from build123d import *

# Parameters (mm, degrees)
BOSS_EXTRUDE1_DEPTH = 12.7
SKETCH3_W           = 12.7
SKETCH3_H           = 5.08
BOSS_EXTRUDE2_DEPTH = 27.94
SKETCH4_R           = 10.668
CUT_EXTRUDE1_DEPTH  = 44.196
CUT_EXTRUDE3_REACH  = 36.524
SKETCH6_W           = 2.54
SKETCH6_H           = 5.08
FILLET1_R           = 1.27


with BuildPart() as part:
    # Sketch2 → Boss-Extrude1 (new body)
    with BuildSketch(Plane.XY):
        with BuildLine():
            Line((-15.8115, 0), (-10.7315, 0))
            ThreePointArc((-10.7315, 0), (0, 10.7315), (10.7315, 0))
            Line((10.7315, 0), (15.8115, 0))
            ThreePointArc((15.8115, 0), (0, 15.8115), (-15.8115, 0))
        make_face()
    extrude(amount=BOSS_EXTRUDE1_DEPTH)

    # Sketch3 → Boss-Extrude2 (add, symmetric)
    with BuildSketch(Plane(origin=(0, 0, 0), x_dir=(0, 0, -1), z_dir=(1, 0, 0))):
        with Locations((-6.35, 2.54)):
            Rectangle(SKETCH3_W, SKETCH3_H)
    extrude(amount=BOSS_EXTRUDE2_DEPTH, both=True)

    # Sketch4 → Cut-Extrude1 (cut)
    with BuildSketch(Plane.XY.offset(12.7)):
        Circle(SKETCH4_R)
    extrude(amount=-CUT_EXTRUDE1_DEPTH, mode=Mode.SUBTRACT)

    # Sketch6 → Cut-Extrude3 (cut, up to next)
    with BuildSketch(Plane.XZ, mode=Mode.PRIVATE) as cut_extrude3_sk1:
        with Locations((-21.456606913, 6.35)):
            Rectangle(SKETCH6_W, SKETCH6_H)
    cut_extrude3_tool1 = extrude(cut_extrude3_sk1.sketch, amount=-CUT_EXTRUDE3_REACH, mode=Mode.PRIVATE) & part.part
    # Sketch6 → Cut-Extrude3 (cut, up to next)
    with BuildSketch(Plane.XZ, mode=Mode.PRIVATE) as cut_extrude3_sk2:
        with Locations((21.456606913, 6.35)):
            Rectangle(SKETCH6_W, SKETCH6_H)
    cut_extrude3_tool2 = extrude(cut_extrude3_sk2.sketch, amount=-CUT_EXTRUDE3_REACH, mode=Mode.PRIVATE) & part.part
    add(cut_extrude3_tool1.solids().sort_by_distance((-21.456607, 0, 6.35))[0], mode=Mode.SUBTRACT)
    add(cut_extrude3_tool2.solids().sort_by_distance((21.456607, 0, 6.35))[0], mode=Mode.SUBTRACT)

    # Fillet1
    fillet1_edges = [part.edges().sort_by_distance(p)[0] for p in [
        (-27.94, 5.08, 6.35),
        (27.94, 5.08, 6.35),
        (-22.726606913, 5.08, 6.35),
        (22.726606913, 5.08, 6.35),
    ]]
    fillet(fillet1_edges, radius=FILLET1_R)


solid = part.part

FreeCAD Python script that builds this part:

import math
import FreeCAD as App
import Part
import Sketcher
Q = App.Units.Quantity


def edges_at(feature, points):
    """Names of the edges that pass closest to the given points."""
    edges = feature.Shape.Edges
    near = lambda p: min(range(len(edges)), key=lambda i: edges[i].distToShape(Part.Vertex(*p))[0])
    return sorted({f"Edge{near(p) + 1}" for p in points})

doc = App.newDocument("Part")
params = doc.addObject("Spreadsheet::Sheet", "Params")
for row, (alias, value) in enumerate([
    ("sketch1_width", "0.2 in"),
    ("pad1_length", "0.5 in"),
    ("sketch2_width", "0.2 in"),
    ("sketch2_height", "0.5 in"),
    ("pad2_length", "2.2 in"),
    ("sketch3_diameter", "0.84 in"),
    ("pocket1_length", "1.74 in"),
    ("sketch4_width", "0.1 in"),
    ("sketch4_height", "0.2 in"),
    ("sketch5_width", "0.1 in"),
    ("sketch5_height", "0.2 in"),
    ("fillet_radius", "0.05 in"),
], start=1):
    params.set(f"A{row}", alias)
    params.set(f"B{row}", "=" + value)
    params.setAlias(f"B{row}", alias)

body = doc.addObject("PartDesign::Body", "Body")

sketch1 = body.newObject("Sketcher::SketchObject", "Sketch")
sketch1.AttachmentSupport = (doc.getObject("XY_Plane"), [""])
sketch1.MapMode = "FlatFace"
sketch1.addGeometry(Part.LineSegment(App.Vector(-16, 0, 0), App.Vector(-11, 0, 0)), False)
sketch1.addGeometry(Part.ArcOfCircle(Part.Circle(App.Vector(0, 0, 0), App.Vector(0, 0, 1), 11), math.radians(0), math.radians(180)), False)
sketch1.addGeometry(Part.LineSegment(App.Vector(11, 0, 0), App.Vector(16, 0, 0)), False)
sketch1.addGeometry(Part.ArcOfCircle(Part.Circle(App.Vector(0, 0, 0), App.Vector(0, 0, 1), 16), math.radians(0), math.radians(180)), False)
sketch1.addConstraint(Sketcher.Constraint("Coincident", 0, 2, 1, 2))
sketch1.addConstraint(Sketcher.Constraint("Coincident", 1, 1, 2, 1))
sketch1.addConstraint(Sketcher.Constraint("Coincident", 2, 2, 3, 1))
sketch1.addConstraint(Sketcher.Constraint("Coincident", 3, 2, 0, 1))
sketch1.addConstraint(Sketcher.Constraint("Horizontal", 0))
sketch1.addConstraint(Sketcher.Constraint("Horizontal", 2))
sketch1.addConstraint(Sketcher.Constraint("Coincident", 1, 3, -1, 1))
sketch1.addConstraint(Sketcher.Constraint("Coincident", 3, 3, -1, 1))
sketch1.addConstraint(Sketcher.Constraint("PointOnObject", 0, 2, -1))
sketch1.addConstraint(Sketcher.Constraint("PointOnObject", 1, 1, -1))
sketch1.addConstraint(Sketcher.Constraint("DistanceX", 0, 1, 0, 2, Q("0.2 in")))
sketch1.addConstraint(Sketcher.Constraint("Radius", 1, Q("0.4225 in")))
sketch1.setExpression("Constraints[10]", "Params.sketch1_width")
pad1 = body.newObject("PartDesign::Pad", "Pad")
pad1.Profile = sketch1
pad1.setExpression("Length", "Params.pad1_length")

sketch2 = body.newObject("Sketcher::SketchObject", "Sketch001")
sketch2.AttachmentSupport = (doc.getObject("YZ_Plane"), [""])
sketch2.MapMode = "FlatFace"
sketch2.addGeometry(Part.LineSegment(App.Vector(5, 13, 0), App.Vector(0, 13, 0)), False)
sketch2.addGeometry(Part.LineSegment(App.Vector(0, 13, 0), App.Vector(0, 0, 0)), False)
sketch2.addGeometry(Part.LineSegment(App.Vector(0, 0, 0), App.Vector(5, 0, 0)), False)
sketch2.addGeometry(Part.LineSegment(App.Vector(5, 0, 0), App.Vector(5, 13, 0)), False)
sketch2.addConstraint(Sketcher.Constraint("Coincident", 0, 2, 1, 1))
sketch2.addConstraint(Sketcher.Constraint("Coincident", 1, 2, 2, 1))
sketch2.addConstraint(Sketcher.Constraint("Coincident", 2, 2, 3, 1))
sketch2.addConstraint(Sketcher.Constraint("Coincident", 3, 2, 0, 1))
sketch2.addConstraint(Sketcher.Constraint("Horizontal", 0))
sketch2.addConstraint(Sketcher.Constraint("Vertical", 1))
sketch2.addConstraint(Sketcher.Constraint("Horizontal", 2))
sketch2.addConstraint(Sketcher.Constraint("Vertical", 3))
sketch2.addConstraint(Sketcher.Constraint("Coincident", 1, 2, -1, 1))
sketch2.addConstraint(Sketcher.Constraint("DistanceX", 0, 2, 0, 1, Q("0.2 in")))
sketch2.addConstraint(Sketcher.Constraint("DistanceY", 1, 2, 1, 1, Q("0.5 in")))
sketch2.setExpression("Constraints[9]", "Params.sketch2_width")
sketch2.setExpression("Constraints[10]", "Params.sketch2_height")
pad2 = body.newObject("PartDesign::Pad", "Pad001")
pad2.Profile = sketch2
pad2.setExpression("Length", "Params.pad2_length")
pad2.Midplane = True

sketch3 = body.newObject("Sketcher::SketchObject", "Sketch002")
sketch3.AttachmentSupport = (doc.getObject("XY_Plane"), [""])
sketch3.MapMode = "FlatFace"
sketch3.AttachmentOffset = App.Placement(App.Vector(0, 0, 0.5 * 25.4), App.Rotation())
sketch3.addGeometry(Part.Circle(App.Vector(0, 0, 0), App.Vector(0, 0, 1), 11), False)
sketch3.addConstraint(Sketcher.Constraint("Coincident", 0, 3, -1, 1))
sketch3.addConstraint(Sketcher.Constraint("Diameter", 0, Q("0.84 in")))
sketch3.setExpression("Constraints[1]", "Params.sketch3_diameter")
pocket1 = body.newObject("PartDesign::Pocket", "Pocket")
pocket1.Profile = sketch3
pocket1.setExpression("Length", "Params.pocket1_length")

sketch4 = body.newObject("Sketcher::SketchObject", "Sketch003")
sketch4.AttachmentSupport = (doc.getObject("XZ_Plane"), [""])
sketch4.MapMode = "FlatFace"
sketch4.addGeometry(Part.LineSegment(App.Vector(-22.7, 8.9, 0), App.Vector(-22.7, 3.8, 0)), False)
sketch4.addGeometry(Part.LineSegment(App.Vector(-22.7, 3.8, 0), App.Vector(-20.2, 3.8, 0)), False)
sketch4.addGeometry(Part.LineSegment(App.Vector(-20.2, 3.8, 0), App.Vector(-20.2, 8.9, 0)), False)
sketch4.addGeometry(Part.LineSegment(App.Vector(-20.2, 8.9, 0), App.Vector(-22.7, 8.9, 0)), False)
sketch4.addConstraint(Sketcher.Constraint("Coincident", 0, 2, 1, 1))
sketch4.addConstraint(Sketcher.Constraint("Coincident", 1, 2, 2, 1))
sketch4.addConstraint(Sketcher.Constraint("Coincident", 2, 2, 3, 1))
sketch4.addConstraint(Sketcher.Constraint("Coincident", 3, 2, 0, 1))
sketch4.addConstraint(Sketcher.Constraint("Vertical", 0))
sketch4.addConstraint(Sketcher.Constraint("Horizontal", 1))
sketch4.addConstraint(Sketcher.Constraint("Vertical", 2))
sketch4.addConstraint(Sketcher.Constraint("Horizontal", 3))
sketch4.addConstraint(Sketcher.Constraint("DistanceX", 1, 1, 1, 2, Q("0.1 in")))
sketch4.addConstraint(Sketcher.Constraint("DistanceY", 0, 2, 0, 1, Q("0.2 in")))
sketch4.addConstraint(Sketcher.Constraint("DistanceY", -1, 1, 0, 2, Q("0.15 in")))
sketch4.addConstraint(Sketcher.Constraint("DistanceX", 0, 2, -1, 1, Q("22.726607 mm")))
sketch4.setExpression("Constraints[8]", "Params.sketch4_width")
sketch4.setExpression("Constraints[9]", "Params.sketch4_height")
pocket2 = body.newObject("PartDesign::Pocket", "Pocket001")
pocket2.Profile = sketch4
pocket2.Type = "UpToFirst"

sketch5 = body.newObject("Sketcher::SketchObject", "Sketch004")
sketch5.AttachmentSupport = (doc.getObject("XZ_Plane"), [""])
sketch5.MapMode = "FlatFace"
sketch5.addGeometry(Part.LineSegment(App.Vector(20.2, 8.9, 0), App.Vector(20.2, 3.8, 0)), False)
sketch5.addGeometry(Part.LineSegment(App.Vector(20.2, 3.8, 0), App.Vector(22.7, 3.8, 0)), False)
sketch5.addGeometry(Part.LineSegment(App.Vector(22.7, 3.8, 0), App.Vector(22.7, 8.9, 0)), False)
sketch5.addGeometry(Part.LineSegment(App.Vector(22.7, 8.9, 0), App.Vector(20.2, 8.9, 0)), False)
sketch5.addConstraint(Sketcher.Constraint("Coincident", 0, 2, 1, 1))
sketch5.addConstraint(Sketcher.Constraint("Coincident", 1, 2, 2, 1))
sketch5.addConstraint(Sketcher.Constraint("Coincident", 2, 2, 3, 1))
sketch5.addConstraint(Sketcher.Constraint("Coincident", 3, 2, 0, 1))
sketch5.addConstraint(Sketcher.Constraint("Vertical", 0))
sketch5.addConstraint(Sketcher.Constraint("Horizontal", 1))
sketch5.addConstraint(Sketcher.Constraint("Vertical", 2))
sketch5.addConstraint(Sketcher.Constraint("Horizontal", 3))
sketch5.addConstraint(Sketcher.Constraint("DistanceX", 1, 1, 1, 2, Q("0.1 in")))
sketch5.addConstraint(Sketcher.Constraint("DistanceY", 0, 2, 0, 1, Q("0.2 in")))
sketch5.addConstraint(Sketcher.Constraint("DistanceY", -1, 1, 0, 2, Q("0.15 in")))
sketch5.addConstraint(Sketcher.Constraint("DistanceX", -1, 1, 0, 2, Q("20.186607 mm")))
sketch5.setExpression("Constraints[8]", "Params.sketch5_width")
sketch5.setExpression("Constraints[9]", "Params.sketch5_height")
pocket3 = body.newObject("PartDesign::Pocket", "Pocket002")
pocket3.Profile = sketch5
pocket3.Type = "UpToFirst"
doc.recompute()

fillet = body.newObject("PartDesign::Fillet", "Fillet")
fillet.Base = (pocket3, edges_at(pocket3, [
    (-27.94, 5.08, 6.35),
    (27.94, 5.08, 6.35),
    (-22.727, 5.08, 6.35),
    (22.727, 5.08, 6.35),
]))
fillet.setExpression("Radius", "Params.fillet_radius")

doc.recompute()
